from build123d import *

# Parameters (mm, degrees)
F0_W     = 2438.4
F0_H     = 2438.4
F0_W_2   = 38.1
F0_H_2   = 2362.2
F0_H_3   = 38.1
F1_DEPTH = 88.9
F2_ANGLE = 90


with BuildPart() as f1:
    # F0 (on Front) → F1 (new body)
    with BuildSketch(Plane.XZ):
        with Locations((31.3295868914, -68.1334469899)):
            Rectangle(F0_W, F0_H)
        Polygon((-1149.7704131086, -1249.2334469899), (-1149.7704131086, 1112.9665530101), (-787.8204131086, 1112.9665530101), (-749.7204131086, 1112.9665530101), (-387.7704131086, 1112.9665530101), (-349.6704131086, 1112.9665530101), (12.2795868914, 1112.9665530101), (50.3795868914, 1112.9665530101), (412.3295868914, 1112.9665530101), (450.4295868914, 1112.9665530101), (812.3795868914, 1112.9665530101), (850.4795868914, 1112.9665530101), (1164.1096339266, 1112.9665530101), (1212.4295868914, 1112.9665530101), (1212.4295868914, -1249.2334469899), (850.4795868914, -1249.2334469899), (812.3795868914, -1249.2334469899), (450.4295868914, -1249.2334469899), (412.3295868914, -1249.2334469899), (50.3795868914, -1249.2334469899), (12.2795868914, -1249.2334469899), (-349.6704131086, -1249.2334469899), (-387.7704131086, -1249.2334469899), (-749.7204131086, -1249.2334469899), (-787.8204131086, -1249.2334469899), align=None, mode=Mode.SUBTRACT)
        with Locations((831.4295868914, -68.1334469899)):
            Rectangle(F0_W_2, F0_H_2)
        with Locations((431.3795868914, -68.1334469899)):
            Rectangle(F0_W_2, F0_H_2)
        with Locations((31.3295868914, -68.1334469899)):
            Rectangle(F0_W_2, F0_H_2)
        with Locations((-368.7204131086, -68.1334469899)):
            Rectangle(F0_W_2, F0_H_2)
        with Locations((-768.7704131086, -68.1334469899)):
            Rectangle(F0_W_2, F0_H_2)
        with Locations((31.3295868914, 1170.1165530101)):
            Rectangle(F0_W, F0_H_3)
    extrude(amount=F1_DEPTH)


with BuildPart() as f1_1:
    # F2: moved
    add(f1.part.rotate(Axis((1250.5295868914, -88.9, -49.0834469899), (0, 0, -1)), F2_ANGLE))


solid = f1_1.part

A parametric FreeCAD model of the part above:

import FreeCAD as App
import Part
import Sketcher

V = App.Vector
Q = App.Units.Quantity

doc = App.newDocument("Part")
params = doc.addObject("Spreadsheet::Sheet", "Params")
for row, (alias, value) in enumerate([
    ("sketch1_width", "96 in"),
    ("sketch1_height", "93 in"),
    ("sketch1_height2", "97.5 in"),
    ("sketch1_width2", "14.25 in"),
    ("pad1_length", "3.5 in"),
], start=1):
    params.set(f"A{row}", alias)
    params.set(f"B{row}", "=" + value)
    params.setAlias(f"B{row}", alias)

body = doc.addObject("PartDesign::Body", "Body")

sketch1 = doc.addObject("Sketcher::SketchObject", "Sketch")
body.addObject(sketch1)
sketch1.AttachmentSupport = (doc.XZ_Plane, [""])
sketch1.MapMode = "FlatFace"
sketch1.addGeometry([
    Part.LineSegment(V(-1188, -1287, 0), V(1251, -1287, 0)),
    Part.LineSegment(V(1251, -1287, 0), V(1251, 1189, 0)),
    Part.LineSegment(V(1251, 1189, 0), V(-1188, 1189, 0)),
    Part.LineSegment(V(-1188, 1189, 0), V(-1188, -1287, 0)),
    Part.LineSegment(V(1212, -1249, 0), V(850, -1249, 0)),
    Part.LineSegment(V(850, -1249, 0), V(850, 1113, 0)),
    Part.LineSegment(V(850, 1113, 0), V(1212, 1113, 0)),
    Part.LineSegment(V(1212, 1113, 0), V(1212, -1249, 0)),
    Part.LineSegment(V(812, -1249, 0), V(450, -1249, 0)),
    Part.LineSegment(V(450, -1249, 0), V(450, 1113, 0)),
    Part.LineSegment(V(450, 1113, 0), V(812, 1113, 0)),
    Part.LineSegment(V(812, 1113, 0), V(812, -1249, 0)),
    Part.LineSegment(V(412, -1249, 0), V(50, -1249, 0)),
    Part.LineSegment(V(50, -1249, 0), V(50, 1113, 0)),
    Part.LineSegment(V(50, 1113, 0), V(412, 1113, 0)),
    Part.LineSegment(V(412, 1113, 0), V(412, -1249, 0)),
    Part.LineSegment(V(12, -1249, 0), V(-350, -1249, 0)),
    Part.LineSegment(V(-350, -1249, 0), V(-350, 1113, 0)),
    Part.LineSegment(V(-350, 1113, 0), V(12, 1113, 0)),
    Part.LineSegment(V(12, 1113, 0), V(12, -1249, 0)),
    Part.LineSegment(V(-388, -1249, 0), V(-750, -1249, 0)),
    Part.LineSegment(V(-750, -1249, 0), V(-750, 1113, 0)),
    Part.LineSegment(V(-750, 1113, 0), V(-388, 1113, 0)),
    Part.LineSegment(V(-388, 1113, 0), V(-388, -1249, 0)),
    Part.LineSegment(V(-788, -1249, 0), V(-1150, -1249, 0)),
    Part.LineSegment(V(-1150, -1249, 0), V(-1150, 1113, 0)),
    Part.LineSegment(V(-1150, 1113, 0), V(-788, 1113, 0)),
    Part.LineSegment(V(-788, 1113, 0), V(-788, -1249, 0)),
], False)
sketch1.addConstraint([
    Sketcher.Constraint("Coincident", 0, 2, 1, 1),
    Sketcher.Constraint("Coincident", 1, 2, 2, 1),
    Sketcher.Constraint("Coincident", 2, 2, 3, 1),
    Sketcher.Constraint("Coincident", 3, 2, 0, 1),
    Sketcher.Constraint("Coincident", 4, 2, 5, 1),
    Sketcher.Constraint("Coincident", 5, 2, 6, 1),
    Sketcher.Constraint("Coincident", 6, 2, 7, 1),
    Sketcher.Constraint("Coincident", 7, 2, 4, 1),
    Sketcher.Constraint("Coincident", 8, 2, 9, 1),
    Sketcher.Constraint("Coincident", 9, 2, 10, 1),
    Sketcher.Constraint("Coincident", 10, 2, 11, 1),
    Sketcher.Constraint("Coincident", 11, 2, 8, 1),
    Sketcher.Constraint("Coincident", 12, 2, 13, 1),
    Sketcher.Constraint("Coincident", 13, 2, 14, 1),
    Sketcher.Constraint("Coincident", 14, 2, 15, 1),
    Sketcher.Constraint("Coincident", 15, 2, 12, 1),
    Sketcher.Constraint("Coincident", 16, 2, 17, 1),
    Sketcher.Constraint("Coincident", 17, 2, 18, 1),
    Sketcher.Constraint("Coincident", 18, 2, 19, 1),
    Sketcher.Constraint("Coincident", 19, 2, 16, 1),
    Sketcher.Constraint("Coincident", 20, 2, 21, 1),
    Sketcher.Constraint("Coincident", 21, 2, 22, 1),
    Sketcher.Constraint("Coincident", 22, 2, 23, 1),
    Sketcher.Constraint("Coincident", 23, 2, 20, 1),
    Sketcher.Constraint("Coincident", 24, 2, 25, 1),
    Sketcher.Constraint("Coincident", 25, 2, 26, 1),
    Sketcher.Constraint("Coincident", 26, 2, 27, 1),
    Sketcher.Constraint("Coincident", 27, 2, 24, 1),
    Sketcher.Constraint("Horizontal", 0),
    Sketcher.Constraint("Vertical", 1),
    Sketcher.Constraint("Horizontal", 2),
    Sketcher.Constraint("Vertical", 3),
    Sketcher.Constraint("Horizontal", 4),
    Sketcher.Constraint("Vertical", 5),
    Sketcher.Constraint("Horizontal", 6),
    Sketcher.Constraint("Vertical", 7),
    Sketcher.Constraint("Horizontal", 8),
    Sketcher.Constraint("Vertical", 9),
    Sketcher.Constraint("Horizontal", 10),
    Sketcher.Constraint("Vertical", 11),
    Sketcher.Constraint("Horizontal", 12),
    Sketcher.Constraint("Vertical", 13),
    Sketcher.Constraint("Horizontal", 14),
    Sketcher.Constraint("Vertical", 15),
    Sketcher.Constraint("Horizontal", 16),
    Sketcher.Constraint("Vertical", 17),
    Sketcher.Constraint("Horizontal", 18),
    Sketcher.Constraint("Vertical", 19),
    Sketcher.Constraint("Horizontal", 20),
    Sketcher.Constraint("Vertical", 21),
    Sketcher.Constraint("Horizontal", 22),
    Sketcher.Constraint("Vertical", 23),
    Sketcher.Constraint("Horizontal", 24),
    Sketcher.Constraint("Vertical", 25),
    Sketcher.Constraint("Horizontal", 26),
    Sketcher.Constraint("Vertical", 27),
    Sketcher.Constraint("Horizontal", 7, 2, 8, 2),
    Sketcher.Constraint("Horizontal", 6, 2, 9, 2),
    Sketcher.Constraint("Horizontal", 11, 2, 12, 2),
    Sketcher.Constraint("Horizontal", 10, 2, 13, 2),
    Sketcher.Constraint("Horizontal", 15, 2, 16, 2),
    Sketcher.Constraint("Horizontal", 14, 2, 17, 2),
    Sketcher.Constraint("Horizontal", 19, 2, 20, 2),
    Sketcher.Constraint("Horizontal", 18, 2, 21, 2),
    Sketcher.Constraint("Horizontal", 23, 2, 24, 2),
    Sketcher.Constraint("Horizontal", 22, 2, 25, 2),
    Sketcher.Constraint("Equal", 6, 8),
    Sketcher.Constraint("Equal", 10, 12),
    Sketcher.Constraint("Equal", 14, 16),
    Sketcher.Constraint("Equal", 18, 20),
    Sketcher.Constraint("Equal", 22, 24),
    Sketcher.Constraint("DistanceX", 0, 1, 0, 2, Q("96 in")),
    Sketcher.Constraint("DistanceY", 5, 1, 5, 2, Q("93 in")),
    Sketcher.Constraint("DistanceY", 1, 1, 1, 2, Q("97.5 in")),
    Sketcher.Constraint("DistanceY", 4, 2, 1, 2, Q("96 in")),
    Sketcher.Constraint("DistanceX", 8, 2, 7, 2, Q("30 in")),
    Sketcher.Constraint("DistanceX", 12, 2, 11, 2, Q("30 in")),
    Sketcher.Constraint("DistanceX", 16, 2, 15, 2, Q("30 in")),
    Sketcher.Constraint("DistanceX", 3, 2, 16, 2, Q("33 in")),
    Sketcher.Constraint("DistanceX", 20, 2, 19, 2, Q("30 in")),
    Sketcher.Constraint("DistanceX", 24, 2, 23, 2, Q("30 in")),
    Sketcher.Constraint("DistanceX", 4, 2, 4, 1, Q("14.25 in")),
    Sketcher.Constraint("DistanceX", -1, 1, 0, 2, 1250.529587),
    Sketcher.Constraint("DistanceY", 0, 2, -1, 1, 1287.333447),
])
sketch1.setExpression("Constraints[71]", "Params.sketch1_width")
sketch1.setExpression("Constraints[72]", "Params.sketch1_height")
sketch1.setExpression("Constraints[73]", "Params.sketch1_height2")
sketch1.setExpression("Constraints[81]", "Params.sketch1_width2")
pad1 = doc.addObject("PartDesign::Pad", "Pad")
body.addObject(pad1)
pad1.Profile = sketch1
pad1.setExpression("Length", "Params.pad1_length")
body2 = doc.addObject("PartDesign::Body", "Body001")
doc.recompute()

body.Placement = App.Placement(V(1339.429587, 1161.629587, 0), App.Rotation(V(0, 0, -1), 90))
boolean = doc.addObject("PartDesign::Boolean", "Boolean")
body2.addObject(boolean)
boolean.Type = "Fuse"
boolean.addObjects([body])

doc.recompute()
